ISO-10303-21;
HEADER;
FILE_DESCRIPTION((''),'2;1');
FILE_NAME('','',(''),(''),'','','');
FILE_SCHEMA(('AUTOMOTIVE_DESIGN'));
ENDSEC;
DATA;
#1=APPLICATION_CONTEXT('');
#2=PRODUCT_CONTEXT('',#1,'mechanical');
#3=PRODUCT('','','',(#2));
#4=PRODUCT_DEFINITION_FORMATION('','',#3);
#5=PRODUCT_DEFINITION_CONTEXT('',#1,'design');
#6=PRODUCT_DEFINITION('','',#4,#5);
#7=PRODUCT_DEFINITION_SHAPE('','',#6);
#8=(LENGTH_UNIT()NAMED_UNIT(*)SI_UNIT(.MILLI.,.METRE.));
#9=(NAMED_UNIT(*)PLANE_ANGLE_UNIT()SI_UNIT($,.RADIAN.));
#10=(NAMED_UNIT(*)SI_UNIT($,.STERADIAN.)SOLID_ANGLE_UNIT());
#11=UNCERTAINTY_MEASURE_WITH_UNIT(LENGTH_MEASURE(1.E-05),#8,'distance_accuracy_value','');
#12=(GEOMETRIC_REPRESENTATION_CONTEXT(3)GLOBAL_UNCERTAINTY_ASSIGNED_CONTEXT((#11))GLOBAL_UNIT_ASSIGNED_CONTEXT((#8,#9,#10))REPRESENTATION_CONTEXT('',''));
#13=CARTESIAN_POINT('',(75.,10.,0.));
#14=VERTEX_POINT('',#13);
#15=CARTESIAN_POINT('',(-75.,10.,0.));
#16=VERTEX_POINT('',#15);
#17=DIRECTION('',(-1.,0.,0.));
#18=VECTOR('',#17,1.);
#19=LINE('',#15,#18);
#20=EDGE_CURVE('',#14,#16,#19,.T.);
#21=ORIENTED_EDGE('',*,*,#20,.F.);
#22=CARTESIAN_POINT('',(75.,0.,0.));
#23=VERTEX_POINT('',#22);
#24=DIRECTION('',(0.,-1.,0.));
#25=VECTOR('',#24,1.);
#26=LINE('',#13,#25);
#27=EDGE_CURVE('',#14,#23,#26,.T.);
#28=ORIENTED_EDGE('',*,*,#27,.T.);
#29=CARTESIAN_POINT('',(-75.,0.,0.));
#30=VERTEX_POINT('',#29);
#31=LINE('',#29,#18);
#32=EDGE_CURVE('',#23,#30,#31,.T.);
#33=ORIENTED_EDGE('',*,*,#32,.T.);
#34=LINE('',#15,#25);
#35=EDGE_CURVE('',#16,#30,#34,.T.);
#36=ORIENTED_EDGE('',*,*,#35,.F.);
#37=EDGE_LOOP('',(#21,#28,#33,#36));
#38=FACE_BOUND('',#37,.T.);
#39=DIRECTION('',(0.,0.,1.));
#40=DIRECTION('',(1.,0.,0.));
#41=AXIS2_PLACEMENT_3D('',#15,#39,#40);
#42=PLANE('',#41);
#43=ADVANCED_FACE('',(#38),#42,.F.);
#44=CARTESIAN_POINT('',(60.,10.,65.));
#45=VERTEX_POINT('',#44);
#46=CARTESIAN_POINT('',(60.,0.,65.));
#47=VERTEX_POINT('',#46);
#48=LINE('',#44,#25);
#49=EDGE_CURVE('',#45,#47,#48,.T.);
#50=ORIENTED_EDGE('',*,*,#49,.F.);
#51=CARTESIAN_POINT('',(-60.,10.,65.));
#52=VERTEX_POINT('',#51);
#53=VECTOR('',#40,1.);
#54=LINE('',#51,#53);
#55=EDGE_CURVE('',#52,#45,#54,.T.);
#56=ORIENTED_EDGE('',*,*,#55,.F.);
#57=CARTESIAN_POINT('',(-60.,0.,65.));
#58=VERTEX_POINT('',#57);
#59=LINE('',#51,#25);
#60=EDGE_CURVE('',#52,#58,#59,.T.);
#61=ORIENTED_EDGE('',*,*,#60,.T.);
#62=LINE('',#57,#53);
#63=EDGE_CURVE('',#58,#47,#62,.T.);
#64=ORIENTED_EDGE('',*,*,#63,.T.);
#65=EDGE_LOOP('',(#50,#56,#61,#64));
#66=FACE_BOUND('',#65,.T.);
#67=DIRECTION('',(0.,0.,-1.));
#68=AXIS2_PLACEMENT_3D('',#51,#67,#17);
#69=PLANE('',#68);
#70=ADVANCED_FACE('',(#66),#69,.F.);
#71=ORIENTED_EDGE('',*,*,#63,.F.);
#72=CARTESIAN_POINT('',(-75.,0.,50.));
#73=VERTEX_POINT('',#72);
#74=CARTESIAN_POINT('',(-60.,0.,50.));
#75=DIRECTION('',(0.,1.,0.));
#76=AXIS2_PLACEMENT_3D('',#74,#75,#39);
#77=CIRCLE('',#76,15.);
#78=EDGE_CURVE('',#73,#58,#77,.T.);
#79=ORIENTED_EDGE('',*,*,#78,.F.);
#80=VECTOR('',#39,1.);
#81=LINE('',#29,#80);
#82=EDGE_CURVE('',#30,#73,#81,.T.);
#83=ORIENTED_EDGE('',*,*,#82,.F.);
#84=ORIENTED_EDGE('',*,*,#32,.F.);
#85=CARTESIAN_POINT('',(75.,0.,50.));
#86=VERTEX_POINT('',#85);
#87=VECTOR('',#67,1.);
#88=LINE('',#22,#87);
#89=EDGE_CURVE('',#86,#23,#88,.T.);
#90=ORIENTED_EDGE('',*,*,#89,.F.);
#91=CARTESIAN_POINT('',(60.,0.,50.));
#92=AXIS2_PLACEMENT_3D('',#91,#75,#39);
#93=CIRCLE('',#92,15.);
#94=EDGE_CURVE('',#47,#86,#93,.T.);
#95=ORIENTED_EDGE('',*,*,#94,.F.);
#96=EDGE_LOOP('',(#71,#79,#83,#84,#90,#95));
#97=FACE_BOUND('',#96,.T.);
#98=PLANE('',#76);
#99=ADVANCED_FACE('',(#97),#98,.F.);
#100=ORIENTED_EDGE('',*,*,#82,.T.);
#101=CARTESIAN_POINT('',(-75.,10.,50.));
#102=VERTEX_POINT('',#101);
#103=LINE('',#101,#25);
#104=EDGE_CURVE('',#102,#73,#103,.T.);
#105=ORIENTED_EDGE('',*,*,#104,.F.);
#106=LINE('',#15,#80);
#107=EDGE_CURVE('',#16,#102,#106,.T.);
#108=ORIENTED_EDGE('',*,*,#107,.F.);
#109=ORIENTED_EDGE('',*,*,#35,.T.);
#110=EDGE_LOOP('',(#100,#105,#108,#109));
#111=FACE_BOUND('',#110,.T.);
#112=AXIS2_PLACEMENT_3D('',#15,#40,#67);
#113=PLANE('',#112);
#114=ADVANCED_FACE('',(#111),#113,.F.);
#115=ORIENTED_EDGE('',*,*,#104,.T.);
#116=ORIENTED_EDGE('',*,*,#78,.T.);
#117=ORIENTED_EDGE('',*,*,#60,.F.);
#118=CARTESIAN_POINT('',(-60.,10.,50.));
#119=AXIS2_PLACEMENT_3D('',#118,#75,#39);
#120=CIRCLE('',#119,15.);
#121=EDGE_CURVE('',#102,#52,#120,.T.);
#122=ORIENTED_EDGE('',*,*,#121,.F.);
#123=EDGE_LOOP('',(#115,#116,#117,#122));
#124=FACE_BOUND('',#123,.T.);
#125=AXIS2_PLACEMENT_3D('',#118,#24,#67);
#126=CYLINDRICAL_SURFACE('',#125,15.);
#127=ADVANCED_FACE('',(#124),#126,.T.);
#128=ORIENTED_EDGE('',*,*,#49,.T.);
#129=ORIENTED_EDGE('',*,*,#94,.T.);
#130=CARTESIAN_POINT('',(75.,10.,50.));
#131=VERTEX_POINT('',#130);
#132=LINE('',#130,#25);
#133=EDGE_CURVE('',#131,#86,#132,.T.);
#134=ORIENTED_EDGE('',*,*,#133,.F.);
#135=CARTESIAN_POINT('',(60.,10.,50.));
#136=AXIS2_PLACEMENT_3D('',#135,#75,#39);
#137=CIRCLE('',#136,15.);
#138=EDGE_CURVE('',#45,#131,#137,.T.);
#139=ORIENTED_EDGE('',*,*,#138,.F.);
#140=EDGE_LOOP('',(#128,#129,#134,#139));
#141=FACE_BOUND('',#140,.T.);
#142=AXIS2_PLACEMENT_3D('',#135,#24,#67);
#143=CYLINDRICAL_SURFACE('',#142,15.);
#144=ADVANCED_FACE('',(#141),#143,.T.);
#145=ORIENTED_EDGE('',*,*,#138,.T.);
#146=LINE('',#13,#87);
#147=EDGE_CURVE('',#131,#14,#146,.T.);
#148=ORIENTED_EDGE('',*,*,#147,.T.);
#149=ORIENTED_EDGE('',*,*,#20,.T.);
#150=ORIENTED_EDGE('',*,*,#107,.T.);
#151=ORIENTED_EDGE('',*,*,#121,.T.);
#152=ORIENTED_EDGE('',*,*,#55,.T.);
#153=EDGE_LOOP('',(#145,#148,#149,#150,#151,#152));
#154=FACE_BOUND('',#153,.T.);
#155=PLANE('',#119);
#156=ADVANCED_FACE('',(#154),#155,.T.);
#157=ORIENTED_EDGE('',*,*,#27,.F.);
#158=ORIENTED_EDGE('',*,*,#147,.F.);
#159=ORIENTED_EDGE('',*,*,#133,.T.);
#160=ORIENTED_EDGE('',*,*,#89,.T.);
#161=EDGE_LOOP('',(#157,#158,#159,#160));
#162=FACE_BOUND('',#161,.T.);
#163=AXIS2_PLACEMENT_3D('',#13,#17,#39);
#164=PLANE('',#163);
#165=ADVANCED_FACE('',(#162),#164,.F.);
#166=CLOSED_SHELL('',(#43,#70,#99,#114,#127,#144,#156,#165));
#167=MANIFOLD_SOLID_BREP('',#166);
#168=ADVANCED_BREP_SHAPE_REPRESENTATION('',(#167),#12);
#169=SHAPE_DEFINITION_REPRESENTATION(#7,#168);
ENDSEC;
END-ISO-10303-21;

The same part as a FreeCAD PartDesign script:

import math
import FreeCAD as App
import Part
import Sketcher

V = App.Vector
Q = App.Units.Quantity

doc = App.newDocument("Part")
body = doc.addObject("PartDesign::Body", "Body")

# Sketch on XZ plane
sketch1 = doc.addObject("Sketcher::SketchObject", "Sketch")
body.addObject(sketch1)
sketch1.AttachmentSupport = (doc.XZ_Plane, [""])
sketch1.MapMode = "FlatFace"
sketch1.addGeometry([
    Part.LineSegment(V(75, 0, 0), V(-75, 0, 0)),  # 0
    Part.LineSegment(V(-75, 0, 0), V(-75, 50, 0)),  # 1
    Part.ArcOfCircle(Part.Circle(V(-60, 50, 0), V(0, 0, 1), 15), math.radians(90), math.radians(180)),  # 2
    Part.LineSegment(V(-60, 65, 0), V(60, 65, 0)),  # 3
    Part.ArcOfCircle(Part.Circle(V(60, 50, 0), V(0, 0, 1), 15), math.radians(0), math.radians(90)),  # 4
    Part.LineSegment(V(75, 50, 0), V(75, 0, 0)),  # 5
], False)
sketch1.addConstraint([
    Sketcher.Constraint("Coincident", 0, 2, 1, 1),
    Sketcher.Constraint("Tangent", 1, 2, 2, 2),
    Sketcher.Constraint("Tangent", 2, 1, 3, 1),
    Sketcher.Constraint("Tangent", 3, 2, 4, 2),
    Sketcher.Constraint("Tangent", 4, 1, 5, 1),
    Sketcher.Constraint("Coincident", 5, 2, 0, 1),
    Sketcher.Constraint("Horizontal", 0),
    Sketcher.Constraint("Vertical", 1),
    Sketcher.Constraint("Horizontal", 3),
    Sketcher.Constraint("Vertical", 5),
    Sketcher.Constraint("Equal", 2, 4),
    Sketcher.Constraint("Symmetric", 0, 2, 5, 2, -1, 1),
    Sketcher.Constraint("Radius", 2, Q("15 mm")),
    Sketcher.Constraint("DistanceX", 0, 2, 0, 1, Q("150 mm")),
    Sketcher.Constraint("DistanceY", 1, 1, 1, 2, Q("50 mm")),
])
pad1 = doc.addObject("PartDesign::Pad", "Pad")
body.addObject(pad1)
pad1.Profile = sketch1
pad1.Length = 10
pad1.Reversed = True

doc.recompute()
